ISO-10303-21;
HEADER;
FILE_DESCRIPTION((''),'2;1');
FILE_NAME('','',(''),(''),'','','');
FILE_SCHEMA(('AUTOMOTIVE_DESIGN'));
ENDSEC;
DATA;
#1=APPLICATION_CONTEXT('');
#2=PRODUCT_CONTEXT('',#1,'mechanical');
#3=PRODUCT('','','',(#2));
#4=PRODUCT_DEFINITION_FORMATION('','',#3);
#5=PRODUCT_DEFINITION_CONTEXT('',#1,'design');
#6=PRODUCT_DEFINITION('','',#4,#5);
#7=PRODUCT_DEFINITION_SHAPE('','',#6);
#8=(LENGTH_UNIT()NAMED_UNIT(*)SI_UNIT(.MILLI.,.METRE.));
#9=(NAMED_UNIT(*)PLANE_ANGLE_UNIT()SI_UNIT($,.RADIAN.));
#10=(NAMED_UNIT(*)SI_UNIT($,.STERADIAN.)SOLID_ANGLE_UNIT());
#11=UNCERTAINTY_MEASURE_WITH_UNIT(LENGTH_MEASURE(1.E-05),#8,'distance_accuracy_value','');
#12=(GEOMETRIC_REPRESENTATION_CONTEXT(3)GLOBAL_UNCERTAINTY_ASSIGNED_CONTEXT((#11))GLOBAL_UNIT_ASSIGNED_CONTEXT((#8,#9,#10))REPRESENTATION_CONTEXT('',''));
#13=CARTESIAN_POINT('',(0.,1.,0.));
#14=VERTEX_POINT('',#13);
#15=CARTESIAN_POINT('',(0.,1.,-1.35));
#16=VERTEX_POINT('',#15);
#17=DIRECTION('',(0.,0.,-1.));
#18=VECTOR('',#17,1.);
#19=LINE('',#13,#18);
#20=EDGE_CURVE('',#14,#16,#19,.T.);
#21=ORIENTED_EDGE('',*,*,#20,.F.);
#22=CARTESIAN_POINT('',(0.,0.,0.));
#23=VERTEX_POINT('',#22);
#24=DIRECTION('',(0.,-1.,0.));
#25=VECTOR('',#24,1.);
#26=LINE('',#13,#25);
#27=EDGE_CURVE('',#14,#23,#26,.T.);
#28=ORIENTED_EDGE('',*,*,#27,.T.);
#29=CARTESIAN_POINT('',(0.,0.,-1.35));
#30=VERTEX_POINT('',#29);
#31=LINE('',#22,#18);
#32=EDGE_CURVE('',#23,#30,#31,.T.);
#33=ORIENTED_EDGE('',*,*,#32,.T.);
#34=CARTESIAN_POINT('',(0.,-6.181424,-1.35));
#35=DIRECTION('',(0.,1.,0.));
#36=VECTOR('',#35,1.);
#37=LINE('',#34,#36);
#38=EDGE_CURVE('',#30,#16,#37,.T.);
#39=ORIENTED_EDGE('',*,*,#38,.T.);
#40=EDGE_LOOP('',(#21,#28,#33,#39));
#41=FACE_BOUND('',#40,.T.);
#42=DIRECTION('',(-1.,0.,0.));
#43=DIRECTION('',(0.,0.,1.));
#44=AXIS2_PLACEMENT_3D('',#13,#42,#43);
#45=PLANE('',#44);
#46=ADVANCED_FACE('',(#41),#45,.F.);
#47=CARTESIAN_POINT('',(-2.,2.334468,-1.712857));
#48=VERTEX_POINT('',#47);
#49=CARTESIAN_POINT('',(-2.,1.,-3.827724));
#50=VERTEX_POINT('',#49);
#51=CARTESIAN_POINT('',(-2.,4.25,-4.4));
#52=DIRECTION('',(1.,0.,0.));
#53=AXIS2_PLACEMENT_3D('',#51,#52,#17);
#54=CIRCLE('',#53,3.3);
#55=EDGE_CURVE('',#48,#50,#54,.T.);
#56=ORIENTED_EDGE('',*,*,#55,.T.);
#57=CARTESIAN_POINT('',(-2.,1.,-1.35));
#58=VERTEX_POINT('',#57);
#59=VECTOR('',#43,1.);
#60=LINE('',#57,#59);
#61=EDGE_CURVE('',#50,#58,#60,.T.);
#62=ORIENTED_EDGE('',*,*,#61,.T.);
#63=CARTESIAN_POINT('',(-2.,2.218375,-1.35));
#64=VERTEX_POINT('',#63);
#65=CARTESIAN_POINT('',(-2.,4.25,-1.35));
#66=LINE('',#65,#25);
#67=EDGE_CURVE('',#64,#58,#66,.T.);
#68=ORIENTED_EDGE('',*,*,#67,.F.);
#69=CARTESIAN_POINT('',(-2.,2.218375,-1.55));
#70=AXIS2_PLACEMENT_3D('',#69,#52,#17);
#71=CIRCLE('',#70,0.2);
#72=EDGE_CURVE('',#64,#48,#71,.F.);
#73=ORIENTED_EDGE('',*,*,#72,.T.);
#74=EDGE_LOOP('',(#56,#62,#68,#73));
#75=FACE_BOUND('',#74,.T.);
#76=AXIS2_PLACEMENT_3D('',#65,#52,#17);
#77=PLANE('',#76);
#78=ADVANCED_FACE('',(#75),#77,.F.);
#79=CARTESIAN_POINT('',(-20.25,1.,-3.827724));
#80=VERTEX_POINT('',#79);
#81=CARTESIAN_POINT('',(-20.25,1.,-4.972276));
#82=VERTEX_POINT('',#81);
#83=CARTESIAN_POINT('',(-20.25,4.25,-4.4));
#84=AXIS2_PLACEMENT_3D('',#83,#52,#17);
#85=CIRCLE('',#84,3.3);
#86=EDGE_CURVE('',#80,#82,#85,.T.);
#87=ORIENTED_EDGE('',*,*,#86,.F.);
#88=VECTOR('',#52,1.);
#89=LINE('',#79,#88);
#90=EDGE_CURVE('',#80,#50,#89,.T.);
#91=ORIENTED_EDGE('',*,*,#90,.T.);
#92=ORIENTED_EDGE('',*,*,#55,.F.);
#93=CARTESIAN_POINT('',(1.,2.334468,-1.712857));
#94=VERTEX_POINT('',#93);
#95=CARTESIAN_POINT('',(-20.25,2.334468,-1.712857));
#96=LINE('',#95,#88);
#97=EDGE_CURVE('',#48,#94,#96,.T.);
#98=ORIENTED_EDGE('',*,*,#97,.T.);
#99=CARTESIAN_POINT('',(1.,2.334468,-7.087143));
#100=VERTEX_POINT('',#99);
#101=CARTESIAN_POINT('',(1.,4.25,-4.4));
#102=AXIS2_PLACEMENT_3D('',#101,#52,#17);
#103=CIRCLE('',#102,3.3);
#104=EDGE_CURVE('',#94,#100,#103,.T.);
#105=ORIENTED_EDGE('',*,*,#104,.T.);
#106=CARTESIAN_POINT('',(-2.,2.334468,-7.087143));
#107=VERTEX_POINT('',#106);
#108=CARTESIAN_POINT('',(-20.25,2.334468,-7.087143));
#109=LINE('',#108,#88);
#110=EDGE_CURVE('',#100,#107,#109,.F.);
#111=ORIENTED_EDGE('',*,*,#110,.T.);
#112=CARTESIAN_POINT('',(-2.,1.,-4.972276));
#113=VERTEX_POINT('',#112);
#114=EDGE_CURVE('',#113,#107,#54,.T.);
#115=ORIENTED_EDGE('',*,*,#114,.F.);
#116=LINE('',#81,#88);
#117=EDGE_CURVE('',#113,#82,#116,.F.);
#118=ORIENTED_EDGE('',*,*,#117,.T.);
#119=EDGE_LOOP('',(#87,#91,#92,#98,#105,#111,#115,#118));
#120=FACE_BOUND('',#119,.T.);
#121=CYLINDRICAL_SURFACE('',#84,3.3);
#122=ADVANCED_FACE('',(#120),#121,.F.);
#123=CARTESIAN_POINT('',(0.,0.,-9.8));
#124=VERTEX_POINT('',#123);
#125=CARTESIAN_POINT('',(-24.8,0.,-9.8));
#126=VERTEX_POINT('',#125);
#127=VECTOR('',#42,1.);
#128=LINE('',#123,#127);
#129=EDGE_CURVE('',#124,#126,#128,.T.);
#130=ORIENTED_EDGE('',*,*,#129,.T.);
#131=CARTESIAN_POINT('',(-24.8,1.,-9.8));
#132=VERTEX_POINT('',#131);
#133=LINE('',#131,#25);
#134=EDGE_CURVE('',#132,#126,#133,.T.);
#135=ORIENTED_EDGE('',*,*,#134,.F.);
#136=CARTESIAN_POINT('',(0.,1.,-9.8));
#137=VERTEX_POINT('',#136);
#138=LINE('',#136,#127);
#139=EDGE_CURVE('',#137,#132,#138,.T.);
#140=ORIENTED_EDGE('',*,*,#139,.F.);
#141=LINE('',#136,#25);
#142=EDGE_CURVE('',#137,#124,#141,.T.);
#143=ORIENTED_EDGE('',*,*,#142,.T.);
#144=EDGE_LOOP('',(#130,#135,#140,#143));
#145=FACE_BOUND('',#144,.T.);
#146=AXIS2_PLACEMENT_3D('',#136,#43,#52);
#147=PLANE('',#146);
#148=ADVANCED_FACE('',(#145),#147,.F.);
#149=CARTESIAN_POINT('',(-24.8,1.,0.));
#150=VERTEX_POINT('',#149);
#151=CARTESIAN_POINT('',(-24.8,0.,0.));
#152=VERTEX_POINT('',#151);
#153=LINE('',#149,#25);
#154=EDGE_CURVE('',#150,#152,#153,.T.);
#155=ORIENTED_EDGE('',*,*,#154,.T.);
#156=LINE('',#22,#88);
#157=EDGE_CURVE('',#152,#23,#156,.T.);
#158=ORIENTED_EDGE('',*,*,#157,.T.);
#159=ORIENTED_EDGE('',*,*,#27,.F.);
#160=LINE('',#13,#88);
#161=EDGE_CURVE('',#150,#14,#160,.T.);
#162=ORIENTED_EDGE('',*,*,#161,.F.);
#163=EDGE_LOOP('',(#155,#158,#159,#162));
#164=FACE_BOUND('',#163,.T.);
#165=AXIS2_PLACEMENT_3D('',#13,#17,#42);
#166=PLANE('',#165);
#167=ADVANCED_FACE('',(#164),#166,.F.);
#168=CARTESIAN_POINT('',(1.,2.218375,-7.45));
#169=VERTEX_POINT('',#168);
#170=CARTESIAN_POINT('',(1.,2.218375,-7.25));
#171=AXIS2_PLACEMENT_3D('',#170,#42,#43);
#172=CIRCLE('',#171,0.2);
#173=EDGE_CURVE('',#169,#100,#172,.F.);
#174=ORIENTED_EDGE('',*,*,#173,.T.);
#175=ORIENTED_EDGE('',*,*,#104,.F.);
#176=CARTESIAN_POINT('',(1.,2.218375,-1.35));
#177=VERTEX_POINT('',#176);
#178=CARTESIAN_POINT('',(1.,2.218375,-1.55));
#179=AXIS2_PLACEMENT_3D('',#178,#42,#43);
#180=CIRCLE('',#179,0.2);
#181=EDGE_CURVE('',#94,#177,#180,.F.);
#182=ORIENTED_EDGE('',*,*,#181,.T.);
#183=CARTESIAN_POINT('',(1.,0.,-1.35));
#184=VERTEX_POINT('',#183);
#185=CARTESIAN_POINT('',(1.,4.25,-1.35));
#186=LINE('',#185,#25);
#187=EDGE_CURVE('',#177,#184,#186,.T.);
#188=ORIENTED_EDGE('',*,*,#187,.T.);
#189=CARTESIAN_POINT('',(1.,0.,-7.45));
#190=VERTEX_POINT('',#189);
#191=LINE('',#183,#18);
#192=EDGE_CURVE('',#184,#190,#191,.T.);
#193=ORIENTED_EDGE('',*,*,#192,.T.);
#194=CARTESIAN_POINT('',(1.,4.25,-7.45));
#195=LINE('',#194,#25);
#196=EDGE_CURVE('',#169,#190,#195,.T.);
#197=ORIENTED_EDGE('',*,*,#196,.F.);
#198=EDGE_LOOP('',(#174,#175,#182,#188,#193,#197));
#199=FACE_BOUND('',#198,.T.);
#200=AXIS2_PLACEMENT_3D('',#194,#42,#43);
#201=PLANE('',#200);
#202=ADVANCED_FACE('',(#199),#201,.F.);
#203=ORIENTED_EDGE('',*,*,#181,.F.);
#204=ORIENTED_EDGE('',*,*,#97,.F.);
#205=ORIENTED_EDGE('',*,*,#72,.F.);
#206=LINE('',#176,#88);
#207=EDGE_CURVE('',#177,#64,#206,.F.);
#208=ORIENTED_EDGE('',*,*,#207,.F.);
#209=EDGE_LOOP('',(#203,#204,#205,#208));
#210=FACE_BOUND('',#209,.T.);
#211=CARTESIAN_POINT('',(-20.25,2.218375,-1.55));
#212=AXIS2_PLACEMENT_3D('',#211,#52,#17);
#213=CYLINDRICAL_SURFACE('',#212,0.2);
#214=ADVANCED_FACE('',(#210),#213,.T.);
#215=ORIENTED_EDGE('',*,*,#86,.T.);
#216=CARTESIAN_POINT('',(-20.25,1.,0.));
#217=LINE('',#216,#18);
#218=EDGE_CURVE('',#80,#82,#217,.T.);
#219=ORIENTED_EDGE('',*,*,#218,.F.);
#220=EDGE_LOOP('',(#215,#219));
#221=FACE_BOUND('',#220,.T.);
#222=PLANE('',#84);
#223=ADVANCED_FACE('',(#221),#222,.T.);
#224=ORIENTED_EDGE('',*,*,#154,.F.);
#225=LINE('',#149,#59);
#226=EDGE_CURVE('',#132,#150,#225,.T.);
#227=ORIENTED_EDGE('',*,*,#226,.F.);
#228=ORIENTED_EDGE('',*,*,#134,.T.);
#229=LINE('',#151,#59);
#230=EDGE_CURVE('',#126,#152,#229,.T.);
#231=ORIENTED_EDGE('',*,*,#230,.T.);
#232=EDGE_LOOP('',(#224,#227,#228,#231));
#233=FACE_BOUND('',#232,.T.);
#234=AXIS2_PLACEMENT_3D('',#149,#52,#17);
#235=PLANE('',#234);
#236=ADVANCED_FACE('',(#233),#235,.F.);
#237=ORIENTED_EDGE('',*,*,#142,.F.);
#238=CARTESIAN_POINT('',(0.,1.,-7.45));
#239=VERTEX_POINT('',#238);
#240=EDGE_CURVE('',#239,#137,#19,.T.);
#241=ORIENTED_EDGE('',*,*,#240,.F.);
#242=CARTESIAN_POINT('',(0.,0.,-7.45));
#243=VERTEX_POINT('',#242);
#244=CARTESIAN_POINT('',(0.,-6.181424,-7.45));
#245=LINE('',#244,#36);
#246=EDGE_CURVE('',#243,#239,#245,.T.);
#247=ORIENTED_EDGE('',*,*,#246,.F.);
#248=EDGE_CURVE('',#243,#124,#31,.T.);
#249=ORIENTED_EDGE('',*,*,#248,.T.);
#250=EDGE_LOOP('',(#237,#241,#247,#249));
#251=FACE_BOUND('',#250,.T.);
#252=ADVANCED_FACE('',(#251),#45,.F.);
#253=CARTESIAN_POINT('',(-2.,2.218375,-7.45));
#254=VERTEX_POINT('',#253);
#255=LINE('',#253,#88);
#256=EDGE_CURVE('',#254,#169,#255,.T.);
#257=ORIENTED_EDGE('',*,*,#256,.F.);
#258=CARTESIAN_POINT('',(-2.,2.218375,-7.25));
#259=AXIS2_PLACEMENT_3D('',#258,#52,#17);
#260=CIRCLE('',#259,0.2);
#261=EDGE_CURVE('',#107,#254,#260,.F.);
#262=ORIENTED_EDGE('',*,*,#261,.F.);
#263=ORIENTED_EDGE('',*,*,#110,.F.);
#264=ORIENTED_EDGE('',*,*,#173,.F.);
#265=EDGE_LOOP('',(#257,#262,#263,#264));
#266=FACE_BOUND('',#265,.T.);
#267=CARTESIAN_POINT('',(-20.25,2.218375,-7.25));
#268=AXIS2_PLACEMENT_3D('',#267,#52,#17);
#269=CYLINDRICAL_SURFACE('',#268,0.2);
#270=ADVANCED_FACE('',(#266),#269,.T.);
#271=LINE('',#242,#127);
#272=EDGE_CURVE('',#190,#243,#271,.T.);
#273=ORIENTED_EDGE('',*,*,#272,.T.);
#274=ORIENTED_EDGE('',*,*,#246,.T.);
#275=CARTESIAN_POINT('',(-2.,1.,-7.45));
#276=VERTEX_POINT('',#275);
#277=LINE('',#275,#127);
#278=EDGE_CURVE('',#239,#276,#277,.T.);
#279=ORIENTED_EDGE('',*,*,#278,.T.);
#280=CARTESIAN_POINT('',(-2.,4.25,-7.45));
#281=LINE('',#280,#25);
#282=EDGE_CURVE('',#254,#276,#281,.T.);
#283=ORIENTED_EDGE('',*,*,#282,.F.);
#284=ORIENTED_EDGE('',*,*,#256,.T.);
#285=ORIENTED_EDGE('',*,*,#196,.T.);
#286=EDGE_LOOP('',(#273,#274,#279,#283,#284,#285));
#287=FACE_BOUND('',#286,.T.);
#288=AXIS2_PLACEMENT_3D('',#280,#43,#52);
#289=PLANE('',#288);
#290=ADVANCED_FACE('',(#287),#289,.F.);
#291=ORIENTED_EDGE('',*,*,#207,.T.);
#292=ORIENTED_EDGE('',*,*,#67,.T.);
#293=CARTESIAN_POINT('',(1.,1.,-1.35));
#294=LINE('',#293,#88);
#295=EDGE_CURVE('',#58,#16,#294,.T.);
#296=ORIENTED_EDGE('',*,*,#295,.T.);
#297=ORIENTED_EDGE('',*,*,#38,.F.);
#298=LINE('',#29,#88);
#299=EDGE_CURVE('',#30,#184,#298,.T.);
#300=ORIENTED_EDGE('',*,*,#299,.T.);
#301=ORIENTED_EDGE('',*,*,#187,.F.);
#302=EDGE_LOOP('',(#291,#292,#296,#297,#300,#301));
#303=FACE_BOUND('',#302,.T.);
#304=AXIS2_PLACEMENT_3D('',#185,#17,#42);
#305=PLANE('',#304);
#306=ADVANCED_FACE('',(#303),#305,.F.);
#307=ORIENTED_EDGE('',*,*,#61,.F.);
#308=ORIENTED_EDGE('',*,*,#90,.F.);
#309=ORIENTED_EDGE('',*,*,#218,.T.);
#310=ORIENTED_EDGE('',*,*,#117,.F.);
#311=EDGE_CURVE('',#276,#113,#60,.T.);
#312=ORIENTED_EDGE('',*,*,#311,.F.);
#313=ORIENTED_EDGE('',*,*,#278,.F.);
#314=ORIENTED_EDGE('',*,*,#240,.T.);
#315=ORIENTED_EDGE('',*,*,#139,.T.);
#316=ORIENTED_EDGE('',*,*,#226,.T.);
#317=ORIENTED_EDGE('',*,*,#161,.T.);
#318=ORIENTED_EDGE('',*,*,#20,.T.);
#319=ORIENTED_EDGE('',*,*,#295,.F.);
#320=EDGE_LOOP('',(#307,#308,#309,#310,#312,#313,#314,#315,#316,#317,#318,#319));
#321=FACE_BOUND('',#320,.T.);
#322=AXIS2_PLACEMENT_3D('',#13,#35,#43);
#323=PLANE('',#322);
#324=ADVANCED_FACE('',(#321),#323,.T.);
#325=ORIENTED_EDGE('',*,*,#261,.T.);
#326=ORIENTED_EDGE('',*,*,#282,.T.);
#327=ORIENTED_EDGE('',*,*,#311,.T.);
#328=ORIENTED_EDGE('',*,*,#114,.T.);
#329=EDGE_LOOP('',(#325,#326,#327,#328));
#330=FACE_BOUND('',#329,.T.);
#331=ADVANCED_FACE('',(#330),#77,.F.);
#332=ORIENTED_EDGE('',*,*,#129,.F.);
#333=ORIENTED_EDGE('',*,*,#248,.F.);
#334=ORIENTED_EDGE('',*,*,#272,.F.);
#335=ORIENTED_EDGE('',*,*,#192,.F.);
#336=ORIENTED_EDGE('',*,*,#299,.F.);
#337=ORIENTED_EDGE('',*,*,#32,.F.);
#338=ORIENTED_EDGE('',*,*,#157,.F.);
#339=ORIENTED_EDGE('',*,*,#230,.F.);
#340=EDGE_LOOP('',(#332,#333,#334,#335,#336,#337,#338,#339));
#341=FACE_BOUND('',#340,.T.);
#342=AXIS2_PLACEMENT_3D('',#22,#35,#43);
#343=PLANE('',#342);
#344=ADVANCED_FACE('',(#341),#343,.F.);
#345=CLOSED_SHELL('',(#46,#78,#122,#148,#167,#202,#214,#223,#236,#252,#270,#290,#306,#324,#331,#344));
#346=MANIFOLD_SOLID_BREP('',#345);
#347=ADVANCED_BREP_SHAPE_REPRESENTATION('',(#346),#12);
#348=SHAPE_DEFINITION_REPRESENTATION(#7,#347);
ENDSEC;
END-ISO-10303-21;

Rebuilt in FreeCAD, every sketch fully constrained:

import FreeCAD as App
import Part
import Sketcher
from FreeCAD import Vector
Q = App.Units.Quantity


def edges_at(feature, points):
    """Names of the edges that pass closest to the given points."""
    edges = feature.Shape.Edges
    near = lambda p: min(range(len(edges)), key=lambda i: edges[i].distToShape(Part.Vertex(*p))[0])
    return sorted({f"Edge{near(p) + 1}" for p in points})


def add_polygon(sketch, points):
    """Adds a closed chain of lines whose ends are joined by coincident constraints."""
    first, n = sketch.GeometryCount, len(points)
    for a, b in zip(points, points[1:] + points[:1]):
        sketch.addGeometry(Part.LineSegment(App.Vector(*a, 0), App.Vector(*b, 0)), False)
    for i in range(n):
        sketch.addConstraint(Sketcher.Constraint("Coincident", first + i, 2, first + (i + 1) % n, 1))

doc = App.newDocument("Part")
body = doc.addObject("PartDesign::Body", "Body")

sketch1 = doc.addObject("Sketcher::SketchObject", "Sketch")
body.addObject(sketch1)
sketch1.AttachmentSupport = (doc.XZ_Plane, [""])
sketch1.MapMode = "FlatFace"
add_polygon(sketch1, [(-25, -10), (-25, 0), (0, 0), (0, -10)])
sketch1.addConstraint([
    Sketcher.Constraint("Vertical", 0),
    Sketcher.Constraint("Horizontal", 1),
    Sketcher.Constraint("Vertical", 2),
    Sketcher.Constraint("Horizontal", 3),
    Sketcher.Constraint("Coincident", 1, 2, -1, 1),
    Sketcher.Constraint("DistanceX", 1, 1, 1, 2, Q("24.8 mm")),
    Sketcher.Constraint("DistanceY", 0, 1, 0, 2, Q("9.8 mm")),
])
pad1 = doc.addObject("PartDesign::Pad", "Pad")
body.addObject(pad1)
pad1.Profile = sketch1
pad1.Length = 1
pad1.Reversed = True

sketch2 = doc.addObject("Sketcher::SketchObject", "Sketch001")
body.addObject(sketch2)
sketch2.AttachmentSupport = (doc.XZ_Plane, [""])
sketch2.MapMode = "FlatFace"
sketch2.AttachmentOffset = App.Placement(Vector(0, 0, -1), App.Rotation())
add_polygon(sketch2, [(-2, -7.5), (-2, -1.4), (1, -1.4), (1, -7.5)])
sketch2.addConstraint([
    Sketcher.Constraint("Vertical", 0),
    Sketcher.Constraint("Horizontal", 1),
    Sketcher.Constraint("Vertical", 2),
    Sketcher.Constraint("Horizontal", 3),
    Sketcher.Constraint("DistanceX", 1, 1, 1, 2, Q("3 mm")),
    Sketcher.Constraint("DistanceY", 0, 1, 0, 2, Q("6.1 mm")),
    Sketcher.Constraint("DistanceX", 0, 2, -1, 1, Q("2 mm")),
    Sketcher.Constraint("DistanceY", 0, 2, -1, 1, Q("1.35 mm")),
])
pad2 = doc.addObject("PartDesign::Pad", "Pad001")
body.addObject(pad2)
pad2.Profile = sketch2
pad2.Length = 3.25
pad2.Reversed = True

sketch3 = doc.addObject("Sketcher::SketchObject", "Sketch002")
body.addObject(sketch3)
sketch3.AttachmentSupport = (doc.XZ_Plane, [""])
sketch3.MapMode = "FlatFace"
sketch3.AttachmentOffset = App.Placement(Vector(0, 0, -1), App.Rotation())
add_polygon(sketch3, [(0, -1.4), (0, -7.5), (1, -7.5), (1, -1.4)])
sketch3.addConstraint([
    Sketcher.Constraint("Vertical", 0),
    Sketcher.Constraint("Horizontal", 1),
    Sketcher.Constraint("Vertical", 2),
    Sketcher.Constraint("Horizontal", 3),
    Sketcher.Constraint("PointOnObject", 0, 2, -2),
    Sketcher.Constraint("DistanceX", 1, 1, 1, 2, Q("1 mm")),
    Sketcher.Constraint("DistanceY", 0, 2, 0, 1, Q("6.1 mm")),
    Sketcher.Constraint("DistanceY", 0, 2, -1, 1, Q("7.45 mm")),
])
pad3 = doc.addObject("PartDesign::Pad", "Pad002")
body.addObject(pad3)
pad3.Profile = sketch3
pad3.Length = 1

sketch4 = doc.addObject("Sketcher::SketchObject", "Sketch003")
body.addObject(sketch4)
sketch4.AttachmentSupport = (doc.YZ_Plane, [""])
sketch4.MapMode = "FlatFace"
sketch4.AttachmentOffset = App.Placement(Vector(0, 0, 1), App.Rotation())
sketch4.addGeometry(Part.Circle(Vector(4.2, -4.4, 0), Vector(0, 0, 1), 3.3), False)
sketch4.addConstraint([
    Sketcher.Constraint("Diameter", 0, Q("6.6 mm")),
    Sketcher.Constraint("DistanceY", 0, 3, -1, 1, Q("4.4 mm")),
    Sketcher.Constraint("DistanceX", -1, 1, 0, 3, Q("4.25 mm")),
])
pocket1 = doc.addObject("PartDesign::Pocket", "Pocket")
body.addObject(pocket1)
pocket1.Profile = sketch4
pocket1.Length = 21.25
doc.recompute()

fillet = doc.addObject("PartDesign::Fillet", "Fillet")
body.addObject(fillet)
fillet.Base = (pocket1, edges_at(pocket1, [(-0.5, 2.99, -1.35), (-0.5, 2.99, -7.45)]))
fillet.Radius = 0.2

doc.recompute()
